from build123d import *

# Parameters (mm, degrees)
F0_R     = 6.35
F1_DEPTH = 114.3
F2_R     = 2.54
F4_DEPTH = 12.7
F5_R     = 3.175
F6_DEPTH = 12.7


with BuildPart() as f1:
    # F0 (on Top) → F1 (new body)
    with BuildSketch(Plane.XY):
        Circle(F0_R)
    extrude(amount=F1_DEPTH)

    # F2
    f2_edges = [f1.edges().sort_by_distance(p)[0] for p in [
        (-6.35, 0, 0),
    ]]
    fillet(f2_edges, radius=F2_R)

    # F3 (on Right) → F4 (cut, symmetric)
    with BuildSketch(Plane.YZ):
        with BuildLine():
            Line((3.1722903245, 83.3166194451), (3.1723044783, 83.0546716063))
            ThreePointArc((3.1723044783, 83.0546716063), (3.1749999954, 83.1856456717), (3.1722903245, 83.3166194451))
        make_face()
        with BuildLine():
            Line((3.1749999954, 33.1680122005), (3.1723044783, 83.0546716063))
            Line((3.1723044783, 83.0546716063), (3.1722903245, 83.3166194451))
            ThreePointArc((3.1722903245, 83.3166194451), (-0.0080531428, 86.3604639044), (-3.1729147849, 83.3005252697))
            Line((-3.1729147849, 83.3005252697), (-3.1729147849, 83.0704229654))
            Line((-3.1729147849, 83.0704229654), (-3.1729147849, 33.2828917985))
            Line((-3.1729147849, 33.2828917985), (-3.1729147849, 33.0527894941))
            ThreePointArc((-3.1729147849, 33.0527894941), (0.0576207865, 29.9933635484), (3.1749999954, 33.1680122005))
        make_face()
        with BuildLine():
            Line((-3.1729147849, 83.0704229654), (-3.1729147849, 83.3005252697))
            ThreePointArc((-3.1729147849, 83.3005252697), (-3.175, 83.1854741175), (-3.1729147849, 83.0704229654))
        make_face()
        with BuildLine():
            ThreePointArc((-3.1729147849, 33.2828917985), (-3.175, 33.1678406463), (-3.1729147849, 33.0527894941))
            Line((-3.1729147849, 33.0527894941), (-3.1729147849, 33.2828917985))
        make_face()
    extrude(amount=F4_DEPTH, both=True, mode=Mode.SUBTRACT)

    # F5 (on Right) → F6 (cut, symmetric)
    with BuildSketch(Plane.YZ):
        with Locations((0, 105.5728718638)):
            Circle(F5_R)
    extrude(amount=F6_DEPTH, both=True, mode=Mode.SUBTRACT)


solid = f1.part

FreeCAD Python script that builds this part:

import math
import FreeCAD as App
import Part
import Sketcher
Q = App.Units.Quantity


def edges_at(feature, points):
    """Names of the edges that pass closest to the given points."""
    edges = feature.Shape.Edges
    near = lambda p: min(range(len(edges)), key=lambda i: edges[i].distToShape(Part.Vertex(*p))[0])
    return sorted({f"Edge{near(p) + 1}" for p in points})

doc = App.newDocument("Part")
params = doc.addObject("Spreadsheet::Sheet", "Params")
for row, (alias, value) in enumerate([
    ("sketch1_diameter", "0.5 in"),
    ("pad1_length", "4.5 in"),
    ("fillet_radius", "0.1 in"),
    ("sketch2_radius", "0.125 in"),
    ("pocket1_length", "1 in"),
    ("sketch3_diameter", "0.25 in"),
    ("pocket2_length", "1 in"),
], start=1):
    params.set(f"A{row}", alias)
    params.set(f"B{row}", "=" + value)
    params.setAlias(f"B{row}", alias)

body = doc.addObject("PartDesign::Body", "Body")

# Sketch on XY plane
sketch1 = doc.addObject("Sketcher::SketchObject", "Sketch")
body.addObject(sketch1)
sketch1.AttachmentSupport = (doc.XY_Plane, [""])
sketch1.MapMode = "FlatFace"
sketch1.addGeometry(Part.Circle(App.Vector(0, 0, 0), App.Vector(0, 0, 1), 6), False)
sketch1.addConstraint(Sketcher.Constraint("Coincident", 0, 3, -1, 1))
sketch1.addConstraint(Sketcher.Constraint("Diameter", 0, Q("0.5 in")))
sketch1.setExpression("Constraints[1]", "Params.sketch1_diameter")
pad1 = doc.addObject("PartDesign::Pad", "Pad")
body.addObject(pad1)
pad1.Profile = sketch1
pad1.setExpression("Length", "Params.pad1_length")
doc.recompute()

fillet = doc.addObject("PartDesign::Fillet", "Fillet")
body.addObject(fillet)
fillet.Base = (pad1, edges_at(pad1, [(-6.35, 0, 0)]))
fillet.setExpression("Radius", "Params.fillet_radius")

# Sketch on YZ plane
sketch2 = doc.addObject("Sketcher::SketchObject", "Sketch001")
body.addObject(sketch2)
sketch2.AttachmentSupport = (doc.YZ_Plane, [""])
sketch2.MapMode = "FlatFace"
sketch2.addGeometry(Part.ArcOfCircle(Part.Circle(App.Vector(0, 83.19, 0), App.Vector(0, 0, 1), 3.17), math.radians(-2.36), math.radians(2.37)), False)
sketch2.addGeometry(Part.ArcOfCircle(Part.Circle(App.Vector(0, 83.19, 0), App.Vector(0, 0, 1), 3.17), math.radians(2), math.radians(178)), False)
sketch2.addGeometry(Part.ArcOfCircle(Part.Circle(App.Vector(0, 83.19, 0), App.Vector(0, 0, 1), 3.17), math.radians(177.92), math.radians(182.08)), False)
sketch2.addGeometry(Part.LineSegment(App.Vector(-3.17, 83.07, 0), App.Vector(-3.17, 33.28, 0)), False)
sketch2.addGeometry(Part.ArcOfCircle(Part.Circle(App.Vector(0, 33.17, 0), App.Vector(0, 0, 1), 3.17), math.radians(177.92), math.radians(182.08)), False)
sketch2.addGeometry(Part.ArcOfCircle(Part.Circle(App.Vector(0, 33.17, 0), App.Vector(0, 0, 1), 3.17), math.radians(-178), math.radians(0)), False)
sketch2.addGeometry(Part.LineSegment(App.Vector(3.17, 33.17, 0), App.Vector(3.17, 83.05, 0)), False)
sketch2.addConstraint(Sketcher.Constraint("Tangent", 0, 2, 1, 1))
sketch2.addConstraint(Sketcher.Constraint("Tangent", 1, 2, 2, 1))
sketch2.addConstraint(Sketcher.Constraint("Coincident", 2, 2, 3, 1))
sketch2.addConstraint(Sketcher.Constraint("Coincident", 3, 2, 4, 1))
sketch2.addConstraint(Sketcher.Constraint("Tangent", 4, 2, 5, 1))
sketch2.addConstraint(Sketcher.Constraint("Tangent", 5, 2, 6, 1))
sketch2.addConstraint(Sketcher.Constraint("Coincident", 6, 2, 0, 1))
sketch2.addConstraint(Sketcher.Constraint("Vertical", 3))
sketch2.addConstraint(Sketcher.Constraint("Coincident", 2, 3, 0, 3))
sketch2.addConstraint(Sketcher.Constraint("Equal", 2, 4))
sketch2.addConstraint(Sketcher.Constraint("Equal", 4, 5))
sketch2.addConstraint(Sketcher.Constraint("PointOnObject", 0, 3, -2))
sketch2.addConstraint(Sketcher.Constraint("PointOnObject", 4, 3, -2))
sketch2.addConstraint(Sketcher.Constraint("Vertical", 1, 2, 2, 2))
sketch2.addConstraint(Sketcher.Constraint("Vertical", 3, 2, 4, 2))
sketch2.addConstraint(Sketcher.Constraint("Radius", 0, Q("0.125 in")))
sketch2.addConstraint(Sketcher.Constraint("DistanceY", 3, 2, 3, 1, 49.787531))
sketch2.addConstraint(Sketcher.Constraint("Distance", 6, 49.886659))
sketch2.addConstraint(Sketcher.Constraint("DistanceY", -1, 1, 4, 3, 33.167841))
sketch2.addConstraint(Sketcher.Constraint("DistanceX", -1, 1, 0, 2, 3.17229))
sketch2.addConstraint(Sketcher.Constraint("DistanceY", -1, 1, 0, 2, 83.316619))
sketch2.setExpression("Constraints[15]", "Params.sketch2_radius")
pocket1 = doc.addObject("PartDesign::Pocket", "Pocket")
body.addObject(pocket1)
pocket1.Profile = sketch2
pocket1.setExpression("Length", "Params.pocket1_length")
pocket1.Midplane = True

# Sketch on YZ plane
sketch3 = doc.addObject("Sketcher::SketchObject", "Sketch002")
body.addObject(sketch3)
sketch3.AttachmentSupport = (doc.YZ_Plane, [""])
sketch3.MapMode = "FlatFace"
sketch3.addGeometry(Part.Circle(App.Vector(0, 105.6, 0), App.Vector(0, 0, 1), 3.2), False)
sketch3.addConstraint(Sketcher.Constraint("PointOnObject", 0, 3, -2))
sketch3.addConstraint(Sketcher.Constraint("Diameter", 0, Q("0.25 in")))
sketch3.addConstraint(Sketcher.Constraint("DistanceY", -1, 1, 0, 3, 105.572872))
sketch3.setExpression("Constraints[1]", "Params.sketch3_diameter")
pocket2 = doc.addObject("PartDesign::Pocket", "Pocket001")
body.addObject(pocket2)
pocket2.Profile = sketch3
pocket2.setExpression("Length", "Params.pocket2_length")
pocket2.Midplane = True

doc.recompute()
